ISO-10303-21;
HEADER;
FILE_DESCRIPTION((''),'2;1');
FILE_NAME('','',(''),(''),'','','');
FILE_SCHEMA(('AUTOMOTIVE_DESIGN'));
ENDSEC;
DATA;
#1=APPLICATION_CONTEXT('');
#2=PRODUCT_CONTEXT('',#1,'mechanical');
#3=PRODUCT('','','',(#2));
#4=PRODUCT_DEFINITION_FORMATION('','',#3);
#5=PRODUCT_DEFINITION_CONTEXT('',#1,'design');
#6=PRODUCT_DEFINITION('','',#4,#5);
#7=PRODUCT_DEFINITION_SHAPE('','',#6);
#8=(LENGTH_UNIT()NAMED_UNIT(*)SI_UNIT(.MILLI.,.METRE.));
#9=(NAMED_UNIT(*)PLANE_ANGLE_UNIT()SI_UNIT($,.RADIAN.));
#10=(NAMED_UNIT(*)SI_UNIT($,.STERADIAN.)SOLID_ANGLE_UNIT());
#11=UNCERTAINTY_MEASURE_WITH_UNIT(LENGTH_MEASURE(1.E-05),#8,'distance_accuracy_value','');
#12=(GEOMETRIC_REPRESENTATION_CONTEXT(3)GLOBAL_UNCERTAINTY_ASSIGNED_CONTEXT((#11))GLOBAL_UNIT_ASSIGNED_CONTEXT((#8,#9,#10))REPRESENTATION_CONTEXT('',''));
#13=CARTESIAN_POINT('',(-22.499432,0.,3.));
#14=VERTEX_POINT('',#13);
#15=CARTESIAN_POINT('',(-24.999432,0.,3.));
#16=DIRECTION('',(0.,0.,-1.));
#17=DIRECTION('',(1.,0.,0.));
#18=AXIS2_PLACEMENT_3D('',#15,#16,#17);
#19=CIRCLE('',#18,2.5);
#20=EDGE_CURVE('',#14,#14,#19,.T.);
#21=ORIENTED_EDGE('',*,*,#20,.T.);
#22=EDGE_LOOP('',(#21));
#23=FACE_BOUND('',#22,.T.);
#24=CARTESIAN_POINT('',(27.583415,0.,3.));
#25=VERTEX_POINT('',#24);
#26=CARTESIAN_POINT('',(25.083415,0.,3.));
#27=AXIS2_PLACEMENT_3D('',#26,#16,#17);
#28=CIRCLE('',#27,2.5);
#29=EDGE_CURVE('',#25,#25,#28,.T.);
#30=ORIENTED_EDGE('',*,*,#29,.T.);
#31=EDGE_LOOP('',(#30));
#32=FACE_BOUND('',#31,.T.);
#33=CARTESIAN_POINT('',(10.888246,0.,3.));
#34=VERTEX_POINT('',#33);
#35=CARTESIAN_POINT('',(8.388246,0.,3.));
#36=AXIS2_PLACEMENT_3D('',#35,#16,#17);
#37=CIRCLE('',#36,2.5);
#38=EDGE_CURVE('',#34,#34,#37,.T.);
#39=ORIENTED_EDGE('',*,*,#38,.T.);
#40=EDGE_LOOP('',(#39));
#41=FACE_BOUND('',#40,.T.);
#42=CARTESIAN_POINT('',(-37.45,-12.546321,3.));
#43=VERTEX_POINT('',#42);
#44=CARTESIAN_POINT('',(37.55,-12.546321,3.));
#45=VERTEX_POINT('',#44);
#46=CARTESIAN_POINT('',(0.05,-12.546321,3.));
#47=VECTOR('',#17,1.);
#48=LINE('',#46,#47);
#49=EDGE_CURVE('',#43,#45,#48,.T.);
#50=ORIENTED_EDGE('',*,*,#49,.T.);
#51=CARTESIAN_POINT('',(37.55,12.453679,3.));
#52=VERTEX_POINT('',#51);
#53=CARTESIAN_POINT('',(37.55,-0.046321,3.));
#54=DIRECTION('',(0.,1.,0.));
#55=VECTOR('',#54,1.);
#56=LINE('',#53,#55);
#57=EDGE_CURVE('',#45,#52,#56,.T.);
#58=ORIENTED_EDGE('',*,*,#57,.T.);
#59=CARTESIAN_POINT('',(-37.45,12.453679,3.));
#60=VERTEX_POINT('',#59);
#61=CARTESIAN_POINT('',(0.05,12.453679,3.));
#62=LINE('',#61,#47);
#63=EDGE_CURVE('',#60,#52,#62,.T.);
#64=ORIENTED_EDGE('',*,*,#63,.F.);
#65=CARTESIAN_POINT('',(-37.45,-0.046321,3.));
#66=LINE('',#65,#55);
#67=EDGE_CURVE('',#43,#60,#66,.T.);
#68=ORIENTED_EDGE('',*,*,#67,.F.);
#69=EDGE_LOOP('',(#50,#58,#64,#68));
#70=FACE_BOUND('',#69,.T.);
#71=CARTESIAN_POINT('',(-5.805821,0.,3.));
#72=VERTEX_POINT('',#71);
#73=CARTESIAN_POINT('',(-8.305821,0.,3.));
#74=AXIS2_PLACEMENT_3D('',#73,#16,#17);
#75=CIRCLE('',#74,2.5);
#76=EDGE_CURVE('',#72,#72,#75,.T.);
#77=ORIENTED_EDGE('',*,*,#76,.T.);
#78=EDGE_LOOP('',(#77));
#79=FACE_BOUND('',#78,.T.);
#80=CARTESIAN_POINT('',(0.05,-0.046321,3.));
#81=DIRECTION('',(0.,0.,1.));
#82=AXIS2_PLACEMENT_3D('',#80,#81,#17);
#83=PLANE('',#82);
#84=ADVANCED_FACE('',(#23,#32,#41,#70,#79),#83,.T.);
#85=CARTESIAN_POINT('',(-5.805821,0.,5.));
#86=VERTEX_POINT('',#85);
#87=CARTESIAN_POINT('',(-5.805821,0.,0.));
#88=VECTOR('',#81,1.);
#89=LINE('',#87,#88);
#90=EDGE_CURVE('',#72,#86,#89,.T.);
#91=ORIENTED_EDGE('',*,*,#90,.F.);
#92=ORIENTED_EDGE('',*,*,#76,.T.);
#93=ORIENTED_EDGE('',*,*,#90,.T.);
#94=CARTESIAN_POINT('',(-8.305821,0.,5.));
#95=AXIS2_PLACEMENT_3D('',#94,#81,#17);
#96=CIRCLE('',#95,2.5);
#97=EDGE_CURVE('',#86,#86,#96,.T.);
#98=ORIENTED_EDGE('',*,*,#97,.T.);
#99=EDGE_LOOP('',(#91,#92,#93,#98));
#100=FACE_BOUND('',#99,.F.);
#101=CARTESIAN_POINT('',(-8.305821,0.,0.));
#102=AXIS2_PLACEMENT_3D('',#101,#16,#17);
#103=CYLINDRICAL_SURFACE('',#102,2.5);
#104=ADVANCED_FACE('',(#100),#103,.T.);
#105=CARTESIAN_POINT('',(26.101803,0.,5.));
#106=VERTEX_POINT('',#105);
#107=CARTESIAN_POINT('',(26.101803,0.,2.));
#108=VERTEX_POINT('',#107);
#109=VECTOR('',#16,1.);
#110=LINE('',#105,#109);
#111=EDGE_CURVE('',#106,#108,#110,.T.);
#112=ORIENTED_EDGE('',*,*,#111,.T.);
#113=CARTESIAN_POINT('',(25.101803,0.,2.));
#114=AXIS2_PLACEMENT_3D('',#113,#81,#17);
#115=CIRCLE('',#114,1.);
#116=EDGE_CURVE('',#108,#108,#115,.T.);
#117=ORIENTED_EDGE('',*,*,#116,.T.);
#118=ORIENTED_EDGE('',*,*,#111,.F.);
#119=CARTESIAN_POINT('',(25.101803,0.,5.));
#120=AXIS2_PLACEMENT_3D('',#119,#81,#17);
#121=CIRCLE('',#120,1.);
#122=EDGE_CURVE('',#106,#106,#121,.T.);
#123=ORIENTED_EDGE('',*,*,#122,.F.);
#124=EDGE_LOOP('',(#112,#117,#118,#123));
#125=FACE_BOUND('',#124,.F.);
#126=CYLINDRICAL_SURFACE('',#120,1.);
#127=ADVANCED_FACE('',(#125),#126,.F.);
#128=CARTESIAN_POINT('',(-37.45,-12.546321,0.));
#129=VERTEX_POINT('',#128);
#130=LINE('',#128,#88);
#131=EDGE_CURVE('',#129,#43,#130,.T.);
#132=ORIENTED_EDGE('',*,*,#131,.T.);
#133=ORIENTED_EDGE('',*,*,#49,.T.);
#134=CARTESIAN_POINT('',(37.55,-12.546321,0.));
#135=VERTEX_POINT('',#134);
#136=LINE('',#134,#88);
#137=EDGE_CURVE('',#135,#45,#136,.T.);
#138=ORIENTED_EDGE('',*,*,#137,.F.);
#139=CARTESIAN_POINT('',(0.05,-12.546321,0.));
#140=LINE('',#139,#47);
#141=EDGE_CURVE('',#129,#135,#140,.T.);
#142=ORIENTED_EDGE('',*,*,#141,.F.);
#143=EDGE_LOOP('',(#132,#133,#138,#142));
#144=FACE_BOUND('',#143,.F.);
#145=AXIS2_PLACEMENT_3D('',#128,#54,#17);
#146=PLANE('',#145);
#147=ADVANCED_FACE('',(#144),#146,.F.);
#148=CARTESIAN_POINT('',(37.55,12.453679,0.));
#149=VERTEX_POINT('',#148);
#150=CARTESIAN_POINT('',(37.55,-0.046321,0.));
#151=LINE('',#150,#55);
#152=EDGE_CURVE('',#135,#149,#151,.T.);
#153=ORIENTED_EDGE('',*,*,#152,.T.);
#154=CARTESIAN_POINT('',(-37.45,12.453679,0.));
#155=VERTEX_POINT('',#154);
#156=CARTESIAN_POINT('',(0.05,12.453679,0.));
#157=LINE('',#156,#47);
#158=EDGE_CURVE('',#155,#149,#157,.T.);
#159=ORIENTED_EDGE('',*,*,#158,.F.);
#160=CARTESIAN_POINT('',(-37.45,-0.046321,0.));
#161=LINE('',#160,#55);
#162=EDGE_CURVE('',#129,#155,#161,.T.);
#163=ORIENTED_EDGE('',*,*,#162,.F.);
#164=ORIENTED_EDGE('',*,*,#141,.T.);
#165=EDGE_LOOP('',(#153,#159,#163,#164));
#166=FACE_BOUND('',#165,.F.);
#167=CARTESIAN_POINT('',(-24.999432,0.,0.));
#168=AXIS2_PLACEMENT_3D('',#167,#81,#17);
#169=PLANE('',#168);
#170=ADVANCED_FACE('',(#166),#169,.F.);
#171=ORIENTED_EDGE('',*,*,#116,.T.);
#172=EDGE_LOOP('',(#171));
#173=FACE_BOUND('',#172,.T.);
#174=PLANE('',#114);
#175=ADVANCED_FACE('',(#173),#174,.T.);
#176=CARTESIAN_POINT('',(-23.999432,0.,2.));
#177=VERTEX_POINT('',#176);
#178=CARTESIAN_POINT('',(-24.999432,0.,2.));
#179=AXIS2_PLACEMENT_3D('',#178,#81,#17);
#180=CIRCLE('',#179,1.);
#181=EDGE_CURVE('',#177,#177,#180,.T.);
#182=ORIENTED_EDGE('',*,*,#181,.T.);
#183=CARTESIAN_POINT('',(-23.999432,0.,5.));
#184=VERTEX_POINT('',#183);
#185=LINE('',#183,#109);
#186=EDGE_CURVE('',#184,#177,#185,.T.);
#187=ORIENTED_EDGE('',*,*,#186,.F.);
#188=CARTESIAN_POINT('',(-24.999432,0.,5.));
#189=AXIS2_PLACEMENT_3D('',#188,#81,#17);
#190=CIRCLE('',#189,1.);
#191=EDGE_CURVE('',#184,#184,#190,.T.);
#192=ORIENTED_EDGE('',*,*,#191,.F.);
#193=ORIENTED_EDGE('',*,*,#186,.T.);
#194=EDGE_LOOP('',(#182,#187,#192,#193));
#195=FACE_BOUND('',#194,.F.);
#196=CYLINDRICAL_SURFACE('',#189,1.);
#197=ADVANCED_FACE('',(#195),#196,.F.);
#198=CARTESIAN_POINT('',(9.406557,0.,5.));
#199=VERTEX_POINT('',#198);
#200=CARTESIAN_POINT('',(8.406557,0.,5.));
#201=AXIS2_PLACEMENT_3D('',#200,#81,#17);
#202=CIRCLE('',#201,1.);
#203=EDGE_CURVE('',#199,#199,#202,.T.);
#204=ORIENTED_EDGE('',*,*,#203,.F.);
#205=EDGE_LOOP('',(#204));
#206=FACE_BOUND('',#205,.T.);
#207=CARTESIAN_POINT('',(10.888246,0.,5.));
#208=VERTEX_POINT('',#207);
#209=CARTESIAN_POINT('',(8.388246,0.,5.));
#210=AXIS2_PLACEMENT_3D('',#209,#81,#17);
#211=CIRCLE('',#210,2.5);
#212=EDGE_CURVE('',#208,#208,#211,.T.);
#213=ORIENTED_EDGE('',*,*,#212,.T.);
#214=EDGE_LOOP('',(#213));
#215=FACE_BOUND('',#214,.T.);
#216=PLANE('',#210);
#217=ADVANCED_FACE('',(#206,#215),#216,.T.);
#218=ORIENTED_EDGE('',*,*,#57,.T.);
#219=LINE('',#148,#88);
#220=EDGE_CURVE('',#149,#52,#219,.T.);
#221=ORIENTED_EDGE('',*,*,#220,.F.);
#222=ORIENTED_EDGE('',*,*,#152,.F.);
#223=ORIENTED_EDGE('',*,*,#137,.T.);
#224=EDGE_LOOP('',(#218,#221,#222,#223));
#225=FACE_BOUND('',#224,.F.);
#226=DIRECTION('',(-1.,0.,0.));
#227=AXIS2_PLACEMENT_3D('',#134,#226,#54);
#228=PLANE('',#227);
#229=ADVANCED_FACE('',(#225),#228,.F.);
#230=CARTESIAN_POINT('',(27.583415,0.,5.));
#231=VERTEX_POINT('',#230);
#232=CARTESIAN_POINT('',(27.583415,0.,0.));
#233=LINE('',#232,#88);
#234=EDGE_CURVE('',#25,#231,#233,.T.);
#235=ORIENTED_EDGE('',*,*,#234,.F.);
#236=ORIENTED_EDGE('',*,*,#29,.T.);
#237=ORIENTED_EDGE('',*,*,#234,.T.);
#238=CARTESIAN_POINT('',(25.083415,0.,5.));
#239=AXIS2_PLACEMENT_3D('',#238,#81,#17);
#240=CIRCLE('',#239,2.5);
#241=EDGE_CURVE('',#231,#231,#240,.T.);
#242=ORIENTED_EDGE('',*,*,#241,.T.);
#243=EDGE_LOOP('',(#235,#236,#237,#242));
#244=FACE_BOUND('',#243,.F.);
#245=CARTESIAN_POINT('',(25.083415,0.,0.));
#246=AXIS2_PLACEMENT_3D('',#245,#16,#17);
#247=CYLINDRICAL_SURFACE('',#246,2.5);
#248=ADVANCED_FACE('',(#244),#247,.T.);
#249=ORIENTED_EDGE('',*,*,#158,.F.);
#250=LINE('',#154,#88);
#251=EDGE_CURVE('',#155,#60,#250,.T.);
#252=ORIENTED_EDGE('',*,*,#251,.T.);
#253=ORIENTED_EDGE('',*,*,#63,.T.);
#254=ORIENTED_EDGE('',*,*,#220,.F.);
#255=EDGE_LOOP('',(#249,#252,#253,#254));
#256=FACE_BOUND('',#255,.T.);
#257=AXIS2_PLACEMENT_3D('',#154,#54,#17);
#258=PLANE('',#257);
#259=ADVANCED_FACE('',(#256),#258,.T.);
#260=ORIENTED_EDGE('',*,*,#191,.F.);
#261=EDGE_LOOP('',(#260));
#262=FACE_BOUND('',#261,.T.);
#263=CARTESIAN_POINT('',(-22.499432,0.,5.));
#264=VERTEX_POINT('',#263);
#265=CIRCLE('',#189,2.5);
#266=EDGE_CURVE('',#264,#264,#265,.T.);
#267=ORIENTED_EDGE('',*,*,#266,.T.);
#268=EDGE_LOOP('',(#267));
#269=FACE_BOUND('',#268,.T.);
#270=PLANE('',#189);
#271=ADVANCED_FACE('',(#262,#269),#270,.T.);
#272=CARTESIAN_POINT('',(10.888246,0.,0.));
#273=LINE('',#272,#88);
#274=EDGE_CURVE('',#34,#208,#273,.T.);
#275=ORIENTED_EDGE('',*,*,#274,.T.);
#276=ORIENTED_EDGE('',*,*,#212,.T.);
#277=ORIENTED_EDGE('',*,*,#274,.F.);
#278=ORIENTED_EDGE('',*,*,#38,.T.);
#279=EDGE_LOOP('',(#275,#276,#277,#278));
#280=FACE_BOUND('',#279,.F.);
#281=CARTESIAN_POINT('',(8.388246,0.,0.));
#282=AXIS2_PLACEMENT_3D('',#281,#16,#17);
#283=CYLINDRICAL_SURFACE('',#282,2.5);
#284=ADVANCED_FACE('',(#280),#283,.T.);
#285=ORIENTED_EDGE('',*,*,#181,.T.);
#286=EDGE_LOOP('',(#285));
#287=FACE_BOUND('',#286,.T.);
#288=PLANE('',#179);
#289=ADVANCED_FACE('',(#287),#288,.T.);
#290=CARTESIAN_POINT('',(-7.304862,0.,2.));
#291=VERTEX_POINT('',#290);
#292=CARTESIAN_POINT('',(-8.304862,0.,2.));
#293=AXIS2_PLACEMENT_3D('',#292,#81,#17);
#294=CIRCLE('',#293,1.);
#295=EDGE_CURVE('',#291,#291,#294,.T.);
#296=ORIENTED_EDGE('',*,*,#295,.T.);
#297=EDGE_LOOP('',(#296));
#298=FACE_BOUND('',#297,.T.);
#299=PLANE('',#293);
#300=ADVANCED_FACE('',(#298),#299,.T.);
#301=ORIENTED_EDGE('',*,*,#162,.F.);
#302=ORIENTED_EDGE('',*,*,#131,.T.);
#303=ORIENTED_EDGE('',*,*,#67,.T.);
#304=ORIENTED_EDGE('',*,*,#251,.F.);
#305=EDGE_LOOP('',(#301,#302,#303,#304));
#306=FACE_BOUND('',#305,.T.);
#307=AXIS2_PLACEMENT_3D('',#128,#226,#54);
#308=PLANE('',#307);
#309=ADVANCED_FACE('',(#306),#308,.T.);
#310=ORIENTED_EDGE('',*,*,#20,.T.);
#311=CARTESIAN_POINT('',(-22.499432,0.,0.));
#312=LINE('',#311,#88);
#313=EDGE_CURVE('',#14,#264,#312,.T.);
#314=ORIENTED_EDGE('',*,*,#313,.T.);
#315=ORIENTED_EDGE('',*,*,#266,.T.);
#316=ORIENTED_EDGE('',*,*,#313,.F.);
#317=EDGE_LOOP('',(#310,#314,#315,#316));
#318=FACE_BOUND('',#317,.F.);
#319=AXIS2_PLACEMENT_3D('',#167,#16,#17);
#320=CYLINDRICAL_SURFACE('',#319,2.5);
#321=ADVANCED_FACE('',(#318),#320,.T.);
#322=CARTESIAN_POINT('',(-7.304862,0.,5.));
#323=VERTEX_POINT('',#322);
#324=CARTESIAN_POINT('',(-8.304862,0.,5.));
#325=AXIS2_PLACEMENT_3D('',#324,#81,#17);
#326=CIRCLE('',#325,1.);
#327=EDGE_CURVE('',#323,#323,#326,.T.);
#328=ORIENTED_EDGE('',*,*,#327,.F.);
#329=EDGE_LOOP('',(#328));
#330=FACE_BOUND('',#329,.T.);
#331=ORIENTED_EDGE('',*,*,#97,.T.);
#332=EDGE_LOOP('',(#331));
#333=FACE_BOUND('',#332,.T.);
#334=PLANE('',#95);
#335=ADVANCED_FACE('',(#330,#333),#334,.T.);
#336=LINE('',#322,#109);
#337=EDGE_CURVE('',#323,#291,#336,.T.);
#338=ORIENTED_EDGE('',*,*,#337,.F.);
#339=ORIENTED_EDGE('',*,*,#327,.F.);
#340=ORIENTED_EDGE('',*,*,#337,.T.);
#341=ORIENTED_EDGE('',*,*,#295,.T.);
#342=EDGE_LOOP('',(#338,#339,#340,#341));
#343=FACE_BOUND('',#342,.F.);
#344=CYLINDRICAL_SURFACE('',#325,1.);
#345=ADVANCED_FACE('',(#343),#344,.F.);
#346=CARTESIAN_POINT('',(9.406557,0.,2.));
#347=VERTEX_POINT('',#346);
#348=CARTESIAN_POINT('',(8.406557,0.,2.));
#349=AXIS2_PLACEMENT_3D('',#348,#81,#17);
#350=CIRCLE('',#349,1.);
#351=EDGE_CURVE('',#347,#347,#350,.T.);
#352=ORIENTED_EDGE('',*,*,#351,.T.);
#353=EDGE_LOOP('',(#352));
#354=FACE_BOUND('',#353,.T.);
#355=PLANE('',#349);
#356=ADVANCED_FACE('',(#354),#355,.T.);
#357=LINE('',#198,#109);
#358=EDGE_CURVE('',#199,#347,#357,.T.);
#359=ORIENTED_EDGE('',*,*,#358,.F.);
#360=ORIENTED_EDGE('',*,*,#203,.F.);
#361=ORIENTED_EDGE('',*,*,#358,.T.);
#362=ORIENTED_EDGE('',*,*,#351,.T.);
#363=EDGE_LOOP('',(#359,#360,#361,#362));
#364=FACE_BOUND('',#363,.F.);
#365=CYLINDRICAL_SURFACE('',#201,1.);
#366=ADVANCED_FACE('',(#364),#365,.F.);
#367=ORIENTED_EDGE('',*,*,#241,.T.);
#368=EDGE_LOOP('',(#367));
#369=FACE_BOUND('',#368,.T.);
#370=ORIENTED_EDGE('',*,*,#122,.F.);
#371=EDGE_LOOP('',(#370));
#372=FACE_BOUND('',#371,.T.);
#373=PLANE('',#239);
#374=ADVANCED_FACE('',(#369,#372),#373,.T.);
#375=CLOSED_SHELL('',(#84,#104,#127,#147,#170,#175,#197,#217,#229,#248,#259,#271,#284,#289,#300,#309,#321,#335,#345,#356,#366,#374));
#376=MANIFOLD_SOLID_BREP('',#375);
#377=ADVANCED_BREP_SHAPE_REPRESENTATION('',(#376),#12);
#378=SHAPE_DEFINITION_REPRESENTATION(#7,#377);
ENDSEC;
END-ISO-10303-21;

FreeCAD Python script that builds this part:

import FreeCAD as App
import Part
import Sketcher
from FreeCAD import Vector


def add_polygon(sketch, points):
    """Adds a closed chain of lines whose ends are joined by coincident constraints."""
    first, n = sketch.GeometryCount, len(points)
    for a, b in zip(points, points[1:] + points[:1]):
        sketch.addGeometry(Part.LineSegment(App.Vector(*a, 0), App.Vector(*b, 0)), False)
    for i in range(n):
        sketch.addConstraint(Sketcher.Constraint("Coincident", first + i, 2, first + (i + 1) % n, 1))

doc = App.newDocument("Part")
body = doc.addObject("PartDesign::Body", "Body")

# Sketch on XY plane
sketch1 = body.newObject("Sketcher::SketchObject", "Sketch")
sketch1.AttachmentSupport = (doc.getObject("XY_Plane"), [""])
sketch1.MapMode = "FlatFace"
add_polygon(sketch1, [(-37, 12), (-37, -13), (38, -13), (38, 12)])  # lines 0-3
sketch1.addConstraint(Sketcher.Constraint("Vertical", 0))
sketch1.addConstraint(Sketcher.Constraint("Horizontal", 1))
sketch1.addConstraint(Sketcher.Constraint("Vertical", 2))
sketch1.addConstraint(Sketcher.Constraint("Horizontal", 3))
sketch1.addConstraint(Sketcher.Constraint("DistanceX", 1, 1, 1, 2, 75.0))
sketch1.addConstraint(Sketcher.Constraint("DistanceY", 0, 2, 0, 1, 25.0))
sketch1.addConstraint(Sketcher.Constraint("DistanceX", 0, 2, -1, 1, 37.45))
sketch1.addConstraint(Sketcher.Constraint("DistanceY", 0, 2, -1, 1, 12.546321))
pad1 = body.newObject("PartDesign::Pad", "Pad")
pad1.Profile = sketch1
pad1.Length = 3

# Sketch on XY plane
sketch2 = body.newObject("Sketcher::SketchObject", "Sketch001")
sketch2.AttachmentSupport = (doc.getObject("XY_Plane"), [""])
sketch2.MapMode = "FlatFace"
sketch2.addGeometry(Part.Circle(Vector(-25, 0, 0), Vector(0, 0, 1), 2.5), False)
sketch2.addGeometry(Part.Circle(Vector(-8.3, 0, 0), Vector(0, 0, 1), 2.5), False)
sketch2.addGeometry(Part.Circle(Vector(8.4, 0, 0), Vector(0, 0, 1), 2.5), False)
sketch2.addGeometry(Part.Circle(Vector(25.1, 0, 0), Vector(0, 0, 1), 2.5), False)
sketch2.addConstraint(Sketcher.Constraint("Equal", 0, 1))
sketch2.addConstraint(Sketcher.Constraint("Equal", 1, 2))
sketch2.addConstraint(Sketcher.Constraint("Equal", 2, 3))
sketch2.addConstraint(Sketcher.Constraint("PointOnObject", 0, 3, -1))
sketch2.addConstraint(Sketcher.Constraint("PointOnObject", 1, 3, -1))
sketch2.addConstraint(Sketcher.Constraint("PointOnObject", 2, 3, -1))
sketch2.addConstraint(Sketcher.Constraint("PointOnObject", 3, 3, -1))
sketch2.addConstraint(Sketcher.Constraint("Diameter", 0, 5.0))
sketch2.addConstraint(Sketcher.Constraint("DistanceX", 0, 3, -1, 1, 24.999432))
sketch2.addConstraint(Sketcher.Constraint("DistanceX", 1, 3, -1, 1, 8.305821))
sketch2.addConstraint(Sketcher.Constraint("DistanceX", 2, 3, 3, 3, 16.695169))
sketch2.addConstraint(Sketcher.Constraint("DistanceX", -1, 1, 2, 3, 8.388246))
pad2 = body.newObject("PartDesign::Pad", "Pad001")
pad2.Profile = sketch2
pad2.Length = 5

# Sketch on XY plane
sketch3 = body.newObject("Sketcher::SketchObject", "Sketch002")
sketch3.AttachmentSupport = (doc.getObject("XY_Plane"), [""])
sketch3.MapMode = "FlatFace"
sketch3.AttachmentOffset = App.Placement(Vector(0, 0, 5), App.Rotation())
sketch3.addGeometry(Part.Circle(Vector(-25, 0, 0), Vector(0, 0, 1), 1), False)
sketch3.addGeometry(Part.Circle(Vector(-8.3, 0, 0), Vector(0, 0, 1), 1), False)
sketch3.addGeometry(Part.Circle(Vector(8.4, 0, 0), Vector(0, 0, 1), 1), False)
sketch3.addGeometry(Part.Circle(Vector(25.1, 0, 0), Vector(0, 0, 1), 1), False)
sketch3.addConstraint(Sketcher.Constraint("Equal", 0, 1))
sketch3.addConstraint(Sketcher.Constraint("Equal", 1, 2))
sketch3.addConstraint(Sketcher.Constraint("Equal", 2, 3))
sketch3.addConstraint(Sketcher.Constraint("PointOnObject", 0, 3, -1))
sketch3.addConstraint(Sketcher.Constraint("PointOnObject", 1, 3, -1))
sketch3.addConstraint(Sketcher.Constraint("PointOnObject", 2, 3, -1))
sketch3.addConstraint(Sketcher.Constraint("PointOnObject", 3, 3, -1))
sketch3.addConstraint(Sketcher.Constraint("Diameter", 0, 2.0))
sketch3.addConstraint(Sketcher.Constraint("DistanceX", 0, 3, -1, 1, 24.999432))
sketch3.addConstraint(Sketcher.Constraint("DistanceX", 0, 3, 1, 3, 16.69457))
sketch3.addConstraint(Sketcher.Constraint("DistanceX", 1, 3, 2, 3, 16.711419))
sketch3.addConstraint(Sketcher.Constraint("DistanceX", -1, 1, 3, 3, 25.101803))
pocket1 = body.newObject("PartDesign::Pocket", "Pocket")
pocket1.Profile = sketch3
pocket1.Length = 3

doc.recompute()
